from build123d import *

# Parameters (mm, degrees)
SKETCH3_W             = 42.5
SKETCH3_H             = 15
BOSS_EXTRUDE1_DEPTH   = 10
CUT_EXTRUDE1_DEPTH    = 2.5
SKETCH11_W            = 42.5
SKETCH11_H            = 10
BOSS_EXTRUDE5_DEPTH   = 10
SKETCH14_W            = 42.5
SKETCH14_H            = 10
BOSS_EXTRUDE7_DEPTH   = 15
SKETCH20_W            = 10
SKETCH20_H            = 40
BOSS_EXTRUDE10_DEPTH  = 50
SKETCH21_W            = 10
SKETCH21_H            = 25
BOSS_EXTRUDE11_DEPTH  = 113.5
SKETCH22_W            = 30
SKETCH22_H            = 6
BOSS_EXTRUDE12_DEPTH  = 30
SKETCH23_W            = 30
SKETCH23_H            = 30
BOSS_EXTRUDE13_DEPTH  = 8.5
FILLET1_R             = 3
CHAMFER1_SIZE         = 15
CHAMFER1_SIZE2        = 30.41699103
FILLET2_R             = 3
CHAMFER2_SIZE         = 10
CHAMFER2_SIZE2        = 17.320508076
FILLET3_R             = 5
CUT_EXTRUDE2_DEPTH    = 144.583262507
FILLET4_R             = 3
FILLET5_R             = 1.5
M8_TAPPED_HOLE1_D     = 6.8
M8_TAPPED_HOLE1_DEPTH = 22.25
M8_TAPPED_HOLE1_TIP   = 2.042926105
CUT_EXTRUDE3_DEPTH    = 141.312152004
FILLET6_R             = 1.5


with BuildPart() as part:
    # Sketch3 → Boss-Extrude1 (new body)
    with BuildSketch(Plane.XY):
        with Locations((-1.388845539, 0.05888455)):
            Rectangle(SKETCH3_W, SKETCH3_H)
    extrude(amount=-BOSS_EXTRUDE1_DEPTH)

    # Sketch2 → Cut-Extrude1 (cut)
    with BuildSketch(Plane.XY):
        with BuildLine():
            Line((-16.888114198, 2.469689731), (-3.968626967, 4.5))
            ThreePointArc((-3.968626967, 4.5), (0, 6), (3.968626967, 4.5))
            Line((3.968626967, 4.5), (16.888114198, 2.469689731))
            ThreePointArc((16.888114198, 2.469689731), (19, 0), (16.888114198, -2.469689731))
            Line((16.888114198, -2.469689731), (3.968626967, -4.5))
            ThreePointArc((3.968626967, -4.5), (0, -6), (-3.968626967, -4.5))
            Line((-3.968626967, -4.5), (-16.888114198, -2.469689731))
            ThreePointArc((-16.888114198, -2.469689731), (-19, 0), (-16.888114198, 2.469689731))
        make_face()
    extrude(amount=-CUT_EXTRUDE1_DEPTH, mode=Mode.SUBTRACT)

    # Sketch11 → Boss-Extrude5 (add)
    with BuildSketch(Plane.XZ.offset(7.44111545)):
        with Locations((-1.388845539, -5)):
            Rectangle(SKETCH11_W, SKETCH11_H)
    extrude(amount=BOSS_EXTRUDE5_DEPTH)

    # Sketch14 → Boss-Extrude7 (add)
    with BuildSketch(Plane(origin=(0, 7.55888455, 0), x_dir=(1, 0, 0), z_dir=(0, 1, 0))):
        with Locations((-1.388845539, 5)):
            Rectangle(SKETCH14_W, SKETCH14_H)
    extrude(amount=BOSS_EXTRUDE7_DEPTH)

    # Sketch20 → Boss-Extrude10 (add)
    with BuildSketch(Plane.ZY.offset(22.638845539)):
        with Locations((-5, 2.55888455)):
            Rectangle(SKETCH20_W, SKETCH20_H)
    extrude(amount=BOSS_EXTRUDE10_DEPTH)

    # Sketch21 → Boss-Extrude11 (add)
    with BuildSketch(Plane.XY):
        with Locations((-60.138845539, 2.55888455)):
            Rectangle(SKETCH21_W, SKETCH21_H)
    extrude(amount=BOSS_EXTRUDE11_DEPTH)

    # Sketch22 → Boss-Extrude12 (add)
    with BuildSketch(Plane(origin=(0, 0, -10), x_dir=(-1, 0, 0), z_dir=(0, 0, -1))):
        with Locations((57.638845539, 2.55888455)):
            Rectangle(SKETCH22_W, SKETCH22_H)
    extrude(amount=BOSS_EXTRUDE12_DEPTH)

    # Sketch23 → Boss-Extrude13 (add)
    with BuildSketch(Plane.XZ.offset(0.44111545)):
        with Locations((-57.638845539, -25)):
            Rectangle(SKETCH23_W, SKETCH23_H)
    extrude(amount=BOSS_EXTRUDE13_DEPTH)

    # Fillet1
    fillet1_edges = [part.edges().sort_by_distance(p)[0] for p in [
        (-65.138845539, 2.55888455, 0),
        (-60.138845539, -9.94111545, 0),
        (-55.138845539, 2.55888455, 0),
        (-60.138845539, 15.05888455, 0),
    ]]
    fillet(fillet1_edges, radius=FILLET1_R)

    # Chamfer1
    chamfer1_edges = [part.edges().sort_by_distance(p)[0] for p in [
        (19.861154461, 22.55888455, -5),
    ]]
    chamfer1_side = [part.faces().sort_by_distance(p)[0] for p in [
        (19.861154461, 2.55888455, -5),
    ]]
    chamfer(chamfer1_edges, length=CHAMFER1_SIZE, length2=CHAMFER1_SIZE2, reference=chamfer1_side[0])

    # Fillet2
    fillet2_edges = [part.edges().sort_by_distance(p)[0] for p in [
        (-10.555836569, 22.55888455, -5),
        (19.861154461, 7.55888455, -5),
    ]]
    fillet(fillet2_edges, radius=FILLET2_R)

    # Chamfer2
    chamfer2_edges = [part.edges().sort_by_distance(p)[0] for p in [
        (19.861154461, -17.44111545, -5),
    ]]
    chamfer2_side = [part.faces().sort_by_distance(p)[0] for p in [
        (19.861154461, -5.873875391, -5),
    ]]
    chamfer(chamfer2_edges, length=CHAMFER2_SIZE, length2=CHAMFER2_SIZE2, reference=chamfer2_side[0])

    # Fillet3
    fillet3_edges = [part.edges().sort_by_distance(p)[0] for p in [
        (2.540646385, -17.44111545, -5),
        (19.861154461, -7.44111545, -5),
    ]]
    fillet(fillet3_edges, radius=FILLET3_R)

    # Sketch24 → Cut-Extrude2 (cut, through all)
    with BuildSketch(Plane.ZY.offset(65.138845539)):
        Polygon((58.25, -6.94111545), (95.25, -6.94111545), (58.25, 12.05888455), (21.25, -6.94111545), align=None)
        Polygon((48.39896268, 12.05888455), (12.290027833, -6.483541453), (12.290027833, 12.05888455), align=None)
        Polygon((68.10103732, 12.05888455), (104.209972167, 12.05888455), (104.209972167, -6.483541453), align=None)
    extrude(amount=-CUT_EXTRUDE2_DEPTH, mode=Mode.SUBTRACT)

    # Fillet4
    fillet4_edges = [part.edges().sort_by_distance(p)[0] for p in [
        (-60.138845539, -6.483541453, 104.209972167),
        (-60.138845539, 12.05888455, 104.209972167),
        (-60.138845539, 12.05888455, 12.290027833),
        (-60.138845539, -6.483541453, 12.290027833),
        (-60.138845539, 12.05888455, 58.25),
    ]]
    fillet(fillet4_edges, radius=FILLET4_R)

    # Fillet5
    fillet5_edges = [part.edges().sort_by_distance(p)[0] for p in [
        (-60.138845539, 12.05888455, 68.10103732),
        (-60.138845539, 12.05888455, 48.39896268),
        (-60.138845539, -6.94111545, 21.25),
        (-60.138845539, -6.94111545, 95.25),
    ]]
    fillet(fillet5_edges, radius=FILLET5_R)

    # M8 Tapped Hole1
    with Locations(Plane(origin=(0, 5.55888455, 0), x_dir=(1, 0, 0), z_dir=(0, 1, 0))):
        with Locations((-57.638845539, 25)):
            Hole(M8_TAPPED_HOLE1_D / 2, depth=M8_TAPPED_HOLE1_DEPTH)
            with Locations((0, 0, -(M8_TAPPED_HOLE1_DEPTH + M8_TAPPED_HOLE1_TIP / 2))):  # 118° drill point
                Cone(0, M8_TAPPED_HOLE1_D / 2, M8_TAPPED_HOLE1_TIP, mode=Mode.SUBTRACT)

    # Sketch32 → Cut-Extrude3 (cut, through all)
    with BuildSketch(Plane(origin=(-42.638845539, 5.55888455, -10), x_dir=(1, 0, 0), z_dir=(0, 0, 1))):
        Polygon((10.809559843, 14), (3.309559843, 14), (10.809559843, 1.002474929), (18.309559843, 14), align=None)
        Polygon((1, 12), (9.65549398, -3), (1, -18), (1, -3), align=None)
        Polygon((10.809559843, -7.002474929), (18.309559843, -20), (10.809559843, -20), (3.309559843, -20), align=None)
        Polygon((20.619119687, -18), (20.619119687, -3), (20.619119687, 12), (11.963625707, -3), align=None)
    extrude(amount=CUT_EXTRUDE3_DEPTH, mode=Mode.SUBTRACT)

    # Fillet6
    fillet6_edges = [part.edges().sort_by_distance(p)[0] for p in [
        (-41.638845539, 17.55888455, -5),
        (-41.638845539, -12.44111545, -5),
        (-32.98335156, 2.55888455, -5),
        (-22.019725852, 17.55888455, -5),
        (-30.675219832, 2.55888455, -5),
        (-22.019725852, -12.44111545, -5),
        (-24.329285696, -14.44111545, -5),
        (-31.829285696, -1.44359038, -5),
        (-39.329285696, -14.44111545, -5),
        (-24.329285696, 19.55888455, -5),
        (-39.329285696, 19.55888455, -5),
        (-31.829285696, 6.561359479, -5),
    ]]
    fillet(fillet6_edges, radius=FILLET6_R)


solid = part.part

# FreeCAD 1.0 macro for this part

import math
import FreeCAD as App
import Part
import Sketcher
Q = App.Units.Quantity


def edges_at(feature, points):
    """Names of the edges that pass closest to the given points."""
    edges = feature.Shape.Edges
    near = lambda p: min(range(len(edges)), key=lambda i: edges[i].distToShape(Part.Vertex(*p))[0])
    return sorted({f"Edge{near(p) + 1}" for p in points})


def add_polygon(sketch, points):
    """Adds a closed chain of lines whose ends are joined by coincident constraints."""
    first, n = sketch.GeometryCount, len(points)
    for a, b in zip(points, points[1:] + points[:1]):
        sketch.addGeometry(Part.LineSegment(App.Vector(*a, 0), App.Vector(*b, 0)), False)
    for i in range(n):
        sketch.addConstraint(Sketcher.Constraint("Coincident", first + i, 2, first + (i + 1) % n, 1))

doc = App.newDocument("Part")
params = doc.addObject("Spreadsheet::Sheet", "Params")
for row, (alias, value) in enumerate([
    ("sketch1_height", "15 mm"),
    ("sketch1_width", "42.5 mm"),
    ("pad1_length", "10 mm"),
    ("sketch2_radius", "6 mm"),
    ("sketch2_radius2", "2.5 mm"),
    ("pocket1_length", "2.5 mm"),
    ("sketch3_height", "10 mm"),
    ("sketch3_width", "42.5 mm"),
    ("pad2_length", "10 mm"),
    ("sketch4_height", "10 mm"),
    ("sketch4_width", "42.5 mm"),
    ("pad3_length", "15 mm"),
    ("sketch5_width", "40 mm"),
    ("sketch5_height", "10 mm"),
    ("pad4_length", "50 mm"),
    ("sketch6_width", "10 mm"),
    ("sketch6_height", "25 mm"),
    ("pad5_length", "113.5 mm"),
    ("sketch7_width", "30 mm"),
    ("sketch7_height", "6 mm"),
    ("pad6_length", "30 mm"),
    ("sketch8_width", "30 mm"),
    ("pad7_length", "8.5 mm"),
    ("fillet_radius", "3 mm"),
    ("chamfer_size", "15 mm"),
    ("chamfer_size2", "30.416991 mm"),
    ("fillet2_radius", "3 mm"),
    ("chamfer2_size", "10 mm"),
    ("chamfer2_size2", "17.320508 mm"),
    ("fillet3_radius", "5 mm"),
    ("sketch9_height", "74 mm"),
    ("fillet4_radius", "3 mm"),
    ("fillet5_radius", "1.5 mm"),
    ("sketch10_diameter", "6.8 mm"),
    ("hole_diameter", "6.8 mm"),
    ("hole_depth", "22.25 mm"),
    ("sketch11_width", "15 mm"),
    ("sketch11_height", "30 mm"),
    ("fillet6_radius", "1.5 mm"),
], start=1):
    params.set(f"A{row}", alias)
    params.set(f"B{row}", "=" + value)
    params.setAlias(f"B{row}", alias)

body = doc.addObject("PartDesign::Body", "Body")

# Sketch on XY plane
sketch1 = body.newObject("Sketcher::SketchObject", "Sketch")
sketch1.AttachmentSupport = (doc.getObject("XY_Plane"), [""])
sketch1.MapMode = "FlatFace"
add_polygon(sketch1, [(-23, 8), (-23, -7), (20, -7), (20, 8)])  # lines 0-3
sketch1.addConstraint([
    Sketcher.Constraint("Vertical", 0),
    Sketcher.Constraint("Horizontal", 1),
    Sketcher.Constraint("Vertical", 2),
    Sketcher.Constraint("Horizontal", 3),
    Sketcher.Constraint("DistanceY", 0, 2, 0, 1, Q("15 mm")),
    Sketcher.Constraint("DistanceX", 1, 1, 1, 2, Q("42.5 mm")),
    Sketcher.Constraint("DistanceX", 0, 2, -1, 1, Q("22.638846 mm")),
    Sketcher.Constraint("DistanceY", 0, 2, -1, 1, Q("7.441115 mm")),
])
sketch1.setExpression("Constraints[8]", "Params.sketch1_height")
sketch1.setExpression("Constraints[9]", "Params.sketch1_width")
pad1 = body.newObject("PartDesign::Pad", "Pad")
pad1.Profile = sketch1
pad1.setExpression("Length", "Params.pad1_length")
pad1.Reversed = True

# Sketch on XY plane
sketch2 = body.newObject("Sketcher::SketchObject", "Sketch001")
sketch2.AttachmentSupport = (doc.getObject("XY_Plane"), [""])
sketch2.MapMode = "FlatFace"
sketch2.addGeometry([
    Part.LineSegment(App.Vector(-4, 4.5, 0), App.Vector(-16.9, 2.5, 0)),  # 0
    Part.ArcOfCircle(Part.Circle(App.Vector(-16.5, 0, 0), App.Vector(0, 0, 1), 2.5), math.radians(99), math.radians(261)),  # 1
    Part.LineSegment(App.Vector(-16.9, -2.5, 0), App.Vector(-4, -4.5, 0)),  # 2
    Part.ArcOfCircle(Part.Circle(App.Vector(0, 0, 0), App.Vector(0, 0, 1), 6), math.radians(-131), math.radians(-49)),  # 3
    Part.LineSegment(App.Vector(4, -4.5, 0), App.Vector(16.9, -2.5, 0)),  # 4
    Part.ArcOfCircle(Part.Circle(App.Vector(16.5, 0, 0), App.Vector(0, 0, 1), 2.5), math.radians(-81), math.radians(81)),  # 5
    Part.LineSegment(App.Vector(16.9, 2.5, 0), App.Vector(4, 4.5, 0)),  # 6
    Part.ArcOfCircle(Part.Circle(App.Vector(0, 0, 0), App.Vector(0, 0, 1), 6), math.radians(49), math.radians(131)),  # 7
], False)
sketch2.addConstraint([
    Sketcher.Constraint("Tangent", 0, 2, 1, 1),
    Sketcher.Constraint("Tangent", 1, 2, 2, 1),
    Sketcher.Constraint("Coincident", 2, 2, 3, 1),
    Sketcher.Constraint("Coincident", 3, 2, 4, 1),
    Sketcher.Constraint("Tangent", 4, 2, 5, 1),
    Sketcher.Constraint("Tangent", 5, 2, 6, 1),
    Sketcher.Constraint("Coincident", 6, 2, 7, 1),
    Sketcher.Constraint("Coincident", 7, 2, 0, 1),
    Sketcher.Constraint("Coincident", 3, 3, -1, 1),
    Sketcher.Constraint("Coincident", 7, 3, -1, 1),
    Sketcher.Constraint("Equal", 1, 5),
    Sketcher.Constraint("Equal", 3, 7),
    Sketcher.Constraint("Symmetric", 1, 3, 5, 3, -1, 1),
    Sketcher.Constraint("Symmetric", 1, 2, 4, 2, -2),
    Sketcher.Constraint("Parallel", 0, 4),
    Sketcher.Constraint("Parallel", 2, 6),
    Sketcher.Constraint("Radius", 3, Q("6 mm")),
    Sketcher.Constraint("Radius", 1, Q("2.5 mm")),
    Sketcher.Constraint("DistanceX", 1, 3, 5, 3, Q("33 mm")),
    Sketcher.Constraint("DistanceY", 3, 2, 6, 2, Q("9 mm")),
])
sketch2.setExpression("Constraints[16]", "Params.sketch2_radius")
sketch2.setExpression("Constraints[17]", "Params.sketch2_radius2")
pocket1 = body.newObject("PartDesign::Pocket", "Pocket")
pocket1.Profile = sketch2
pocket1.setExpression("Length", "Params.pocket1_length")

# Sketch on XZ plane
sketch3 = body.newObject("Sketcher::SketchObject", "Sketch002")
sketch3.AttachmentSupport = (doc.getObject("XZ_Plane"), [""])
sketch3.MapMode = "FlatFace"
sketch3.AttachmentOffset = App.Placement(App.Vector(0, 0, 7.441115), App.Rotation())
add_polygon(sketch3, [(-23, 0), (-23, -10), (20, -10), (20, 0)])  # lines 0-3
sketch3.addConstraint([
    Sketcher.Constraint("Vertical", 0),
    Sketcher.Constraint("Horizontal", 1),
    Sketcher.Constraint("Vertical", 2),
    Sketcher.Constraint("Horizontal", 3),
    Sketcher.Constraint("PointOnObject", 2, 2, -1),
    Sketcher.Constraint("DistanceY", 0, 2, 0, 1, Q("10 mm")),
    Sketcher.Constraint("DistanceX", 1, 1, 1, 2, Q("42.5 mm")),
    Sketcher.Constraint("DistanceX", 0, 2, -1, 1, Q("22.638846 mm")),
])
sketch3.setExpression("Constraints[9]", "Params.sketch3_height")
sketch3.setExpression("Constraints[10]", "Params.sketch3_width")
pad2 = body.newObject("PartDesign::Pad", "Pad001")
pad2.Profile = sketch3
pad2.setExpression("Length", "Params.pad2_length")

# Sketch on XZ plane
sketch4 = body.newObject("Sketcher::SketchObject", "Sketch003")
sketch4.AttachmentSupport = (doc.getObject("XZ_Plane"), [""])
sketch4.MapMode = "FlatFace"
sketch4.AttachmentOffset = App.Placement(App.Vector(0, 0, -7.558885), App.Rotation())
add_polygon(sketch4, [(-23, -10), (-23, 0), (20, 0), (20, -10)])  # lines 0-3
sketch4.addConstraint([
    Sketcher.Constraint("Vertical", 0),
    Sketcher.Constraint("Horizontal", 1),
    Sketcher.Constraint("Vertical", 2),
    Sketcher.Constraint("Horizontal", 3),
    Sketcher.Constraint("PointOnObject", 0, 2, -1),
    Sketcher.Constraint("DistanceY", 0, 1, 0, 2, Q("10 mm")),
    Sketcher.Constraint("DistanceX", 1, 1, 1, 2, Q("42.5 mm")),
    Sketcher.Constraint("DistanceX", 0, 2, -1, 1, Q("22.638846 mm")),
])
sketch4.setExpression("Constraints[9]", "Params.sketch4_height")
sketch4.setExpression("Constraints[10]", "Params.sketch4_width")
pad3 = body.newObject("PartDesign::Pad", "Pad002")
pad3.Profile = sketch4
pad3.setExpression("Length", "Params.pad3_length")
pad3.Reversed = True

# Sketch on YZ plane
sketch5 = body.newObject("Sketcher::SketchObject", "Sketch004")
sketch5.AttachmentSupport = (doc.getObject("YZ_Plane"), [""])
sketch5.MapMode = "FlatFace"
sketch5.AttachmentOffset = App.Placement(App.Vector(0, 0, -22.638846), App.Rotation())
add_polygon(sketch5, [(23, -10), (-17, -10), (-17, 0), (23, 0)])  # lines 0-3
sketch5.addConstraint([
    Sketcher.Constraint("Horizontal", 0),
    Sketcher.Constraint("Vertical", 1),
    Sketcher.Constraint("Horizontal", 2),
    Sketcher.Constraint("Vertical", 3),
    Sketcher.Constraint("PointOnObject", 1, 2, -1),
    Sketcher.Constraint("DistanceX", 0, 2, 0, 1, Q("40 mm")),
    Sketcher.Constraint("DistanceY", 1, 1, 1, 2, Q("10 mm")),
    Sketcher.Constraint("DistanceX", 0, 2, -1, 1, Q("17.441115 mm")),
])
sketch5.setExpression("Constraints[9]", "Params.sketch5_width")
sketch5.setExpression("Constraints[10]", "Params.sketch5_height")
pad4 = body.newObject("PartDesign::Pad", "Pad003")
pad4.Profile = sketch5
pad4.setExpression("Length", "Params.pad4_length")
pad4.Reversed = True

# Sketch on XY plane
sketch6 = body.newObject("Sketcher::SketchObject", "Sketch005")
sketch6.AttachmentSupport = (doc.getObject("XY_Plane"), [""])
sketch6.MapMode = "FlatFace"
add_polygon(sketch6, [(-65, 15), (-65, -10), (-55, -10), (-55, 15)])  # lines 0-3
sketch6.addConstraint([
    Sketcher.Constraint("Vertical", 0),
    Sketcher.Constraint("Horizontal", 1),
    Sketcher.Constraint("Vertical", 2),
    Sketcher.Constraint("Horizontal", 3),
    Sketcher.Constraint("DistanceX", 1, 1, 1, 2, Q("10 mm")),
    Sketcher.Constraint("DistanceY", 0, 2, 0, 1, Q("25 mm")),
    Sketcher.Constraint("DistanceX", 0, 2, -1, 1, Q("65.138846 mm")),
    Sketcher.Constraint("DistanceY", 0, 2, -1, 1, Q("9.941115 mm")),
])
sketch6.setExpression("Constraints[8]", "Params.sketch6_width")
sketch6.setExpression("Constraints[9]", "Params.sketch6_height")
pad5 = body.newObject("PartDesign::Pad", "Pad004")
pad5.Profile = sketch6
pad5.setExpression("Length", "Params.pad5_length")

# Sketch on XY plane
sketch7 = body.newObject("Sketcher::SketchObject", "Sketch006")
sketch7.AttachmentSupport = (doc.getObject("XY_Plane"), [""])
sketch7.MapMode = "FlatFace"
sketch7.AttachmentOffset = App.Placement(App.Vector(0, 0, -10), App.Rotation())
add_polygon(sketch7, [(-43, 6), (-43, 0), (-73, 0), (-73, 6)])  # lines 0-3
sketch7.addConstraint([
    Sketcher.Constraint("Vertical", 0),
    Sketcher.Constraint("Horizontal", 1),
    Sketcher.Constraint("Vertical", 2),
    Sketcher.Constraint("Horizontal", 3),
    Sketcher.Constraint("DistanceX", 1, 2, 1, 1, Q("30 mm")),
    Sketcher.Constraint("DistanceY", 0, 2, 0, 1, Q("6 mm")),
    Sketcher.Constraint("DistanceX", 0, 2, -1, 1, Q("42.638846 mm")),
    Sketcher.Constraint("DistanceY", 0, 2, -1, 1, Q("0.441115 mm")),
])
sketch7.setExpression("Constraints[8]", "Params.sketch7_width")
sketch7.setExpression("Constraints[9]", "Params.sketch7_height")
pad6 = body.newObject("PartDesign::Pad", "Pad005")
pad6.Profile = sketch7
pad6.setExpression("Length", "Params.pad6_length")
pad6.Reversed = True

# Sketch on XZ plane
sketch8 = body.newObject("Sketcher::SketchObject", "Sketch007")
sketch8.AttachmentSupport = (doc.getObject("XZ_Plane"), [""])
sketch8.MapMode = "FlatFace"
sketch8.AttachmentOffset = App.Placement(App.Vector(0, 0, 0.441115), App.Rotation())
add_polygon(sketch8, [(-73, -10), (-73, -40), (-43, -40), (-43, -10)])  # lines 0-3
sketch8.addConstraint([
    Sketcher.Constraint("Vertical", 0),
    Sketcher.Constraint("Horizontal", 1),
    Sketcher.Constraint("Vertical", 2),
    Sketcher.Constraint("Horizontal", 3),
    Sketcher.Constraint("Equal", 3, 0),
    Sketcher.Constraint("DistanceX", 1, 1, 1, 2, Q("30 mm")),
    Sketcher.Constraint("DistanceY", 0, 2, -1, 1, Q("40 mm")),
    Sketcher.Constraint("DistanceX", 0, 2, -1, 1, Q("72.638846 mm")),
])
sketch8.setExpression("Constraints[9]", "Params.sketch8_width")
pad7 = body.newObject("PartDesign::Pad", "Pad006")
pad7.Profile = sketch8
pad7.setExpression("Length", "Params.pad7_length")
doc.recompute()

fillet = body.newObject("PartDesign::Fillet", "Fillet")
fillet.Base = (pad7, edges_at(pad7, [
    (-65.139, 2.559, 0),
    (-60.139, -9.941, 0),
    (-55.139, 2.559, 0),
    (-60.139, 15.059, 0),
]))
fillet.setExpression("Radius", "Params.fillet_radius")
doc.recompute()

chamfer = body.newObject("PartDesign::Chamfer", "Chamfer")
chamfer.Base = (fillet, edges_at(fillet, [(19.861, 22.559, -5)]))
chamfer.ChamferType = "Two distances"
chamfer.setExpression("Size", "Params.chamfer_size")
chamfer.setExpression("Size2", "Params.chamfer_size2")
doc.recompute()

fillet2 = body.newObject("PartDesign::Fillet", "Fillet001")
fillet2.Base = (chamfer, edges_at(chamfer, [(-10.556, 22.559, -5), (19.861, 7.559, -5)]))
fillet2.setExpression("Radius", "Params.fillet2_radius")
doc.recompute()

chamfer2 = body.newObject("PartDesign::Chamfer", "Chamfer001")
chamfer2.Base = (fillet2, edges_at(fillet2, [(19.861, -17.441, -5)]))
chamfer2.ChamferType = "Two distances"
chamfer2.setExpression("Size", "Params.chamfer2_size")
chamfer2.setExpression("Size2", "Params.chamfer2_size2")
doc.recompute()

fillet3 = body.newObject("PartDesign::Fillet", "Fillet002")
fillet3.Base = (chamfer2, edges_at(chamfer2, [(2.541, -17.441, -5), (19.861, -7.441, -5)]))
fillet3.setExpression("Radius", "Params.fillet3_radius")

# Sketch on YZ plane
sketch9 = body.newObject("Sketcher::SketchObject", "Sketch008")
sketch9.AttachmentSupport = (doc.getObject("YZ_Plane"), [""])
sketch9.MapMode = "FlatFace"
sketch9.AttachmentOffset = App.Placement(App.Vector(0, 0, -65.138846), App.Rotation())
add_polygon(sketch9, [(-7, 95), (12, 58), (-7, 21)])  # lines 0-2
add_polygon(sketch9, [(-6, 12), (12, 48), (12, 12)])  # lines 3-5
add_polygon(sketch9, [(12, 104), (12, 68), (-6, 104)])  # lines 6-8
sketch9.addConstraint([
    Sketcher.Constraint("Vertical", 2),
    Sketcher.Constraint("Vertical", 4),
    Sketcher.Constraint("Horizontal", 5),
    Sketcher.Constraint("Vertical", 6),
    Sketcher.Constraint("Horizontal", 8),
    Sketcher.Constraint("Parallel", 1, 3),
    Sketcher.Constraint("Parallel", 0, 7),
    Sketcher.Constraint("Vertical", 0, 2, 3, 2),
    Sketcher.Constraint("Vertical", 4, 2, 6, 2),
    Sketcher.Constraint("Vertical", 5, 2, 7, 2),
    Sketcher.Constraint("Equal", 4, 6),
    Sketcher.Constraint("DistanceY", 2, 1, 2, 2, Q("74 mm")),
    Sketcher.Constraint("DistanceX", 1, 2, 0, 2, Q("19 mm")),
    Sketcher.Constraint("DistanceY", -1, 1, 0, 2, Q("58.25 mm")),
    Sketcher.Constraint("DistanceX", 5, 2, 5, 1, Q("18.542426 mm")),
    Sketcher.Constraint("DistanceX", 5, 2, -1, 1, Q("6.483541 mm")),
    Sketcher.Constraint("DistanceY", 4, 2, 6, 2, Q("55.811009 mm")),
    Sketcher.Constraint("DistanceY", -1, 1, 3, 2, Q("48.398963 mm")),
])
sketch9.setExpression("Constraints[20]", "Params.sketch9_height")
pocket2 = body.newObject("PartDesign::Pocket", "Pocket001")
pocket2.Profile = sketch9
pocket2.Type = "ThroughAll"
pocket2.Reversed = True
doc.recompute()

fillet4 = body.newObject("PartDesign::Fillet", "Fillet003")
fillet4.Base = (pocket2, edges_at(pocket2, [
    (-60.139, -6.484, 104.21),
    (-60.139, 12.059, 104.21),
    (-60.139, 12.059, 12.29),
    (-60.139, -6.484, 12.29),
    (-60.139, 12.059, 58.25),
]))
fillet4.setExpression("Radius", "Params.fillet4_radius")
doc.recompute()

fillet5 = body.newObject("PartDesign::Fillet", "Fillet004")
fillet5.Base = (fillet4, edges_at(fillet4, [
    (-60.139, 12.059, 68.101),
    (-60.139, 12.059, 48.399),
    (-60.139, -6.941, 21.25),
    (-60.139, -6.941, 95.25),
]))
fillet5.setExpression("Radius", "Params.fillet5_radius")

# Sketch on XZ plane
sketch10 = body.newObject("Sketcher::SketchObject", "Sketch009")
sketch10.AttachmentSupport = (doc.getObject("XZ_Plane"), [""])
sketch10.MapMode = "FlatFace"
sketch10.AttachmentOffset = App.Placement(App.Vector(0, 0, -5.558885), App.Rotation())
sketch10.addGeometry(Part.Circle(App.Vector(-57.6, -25, 0), App.Vector(0, 0, 1), 3.4), False)
sketch10.addConstraint([
    Sketcher.Constraint("Diameter", 0, Q("6.8 mm")),
    Sketcher.Constraint("DistanceY", 0, 3, -1, 1, Q("25 mm")),
    Sketcher.Constraint("DistanceX", 0, 3, -1, 1, Q("57.638846 mm")),
])
sketch10.setExpression("Constraints[0]", "Params.sketch10_diameter")
doc.recompute()
hole = body.newObject("PartDesign::Hole", "Hole")
hole.Profile = sketch10
hole.ThreadType = "None"
hole.setExpression("Diameter", "Params.hole_diameter")
hole.DepthType = "Dimension"
hole.setExpression("Depth", "Params.hole_depth")
hole.DrillPoint = "Angled"
hole.DrillPointAngle = 118
hole.Reversed = True

# Sketch on XY plane
sketch11 = body.newObject("Sketcher::SketchObject", "Sketch010")
sketch11.AttachmentSupport = (doc.getObject("XY_Plane"), [""])
sketch11.MapMode = "FlatFace"
sketch11.AttachmentOffset = App.Placement(App.Vector(0, 0, -10), App.Rotation())
add_polygon(sketch11, [(-39, 20), (-32, 7), (-24, 20)])  # lines 0-2
add_polygon(sketch11, [(-33, 3), (-42, 18), (-42, -12)])  # lines 3-5
add_polygon(sketch11, [(-24, -14), (-32, -1), (-39, -14)])  # lines 6-8
add_polygon(sketch11, [(-22, -12), (-22, 18), (-31, 3)])  # lines 9-11
sketch11.addConstraint([
    Sketcher.Constraint("Horizontal", 2),
    Sketcher.Constraint("Vertical", 4),
    Sketcher.Constraint("Horizontal", 8),
    Sketcher.Constraint("Vertical", 9),
    Sketcher.Constraint("Parallel", 0, 3),
    Sketcher.Constraint("Parallel", 1, 5),
    Sketcher.Constraint("Parallel", 3, 6),
    Sketcher.Constraint("Parallel", 5, 7),
    Sketcher.Constraint("Parallel", 7, 10),
    Sketcher.Constraint("Parallel", 6, 11),
    Sketcher.Constraint("Horizontal", 3, 2, 9, 2),
    Sketcher.Constraint("Horizontal", 5, 2, 10, 2),
    Sketcher.Constraint("Horizontal", 4, 2, 11, 2),
    Sketcher.Constraint("Vertical", 0, 2, 6, 2),
    Sketcher.Constraint("Vertical", 2, 2, 7, 2),
    Sketcher.Constraint("DistanceX", 2, 2, 2, 1, Q("15 mm")),
    Sketcher.Constraint("DistanceY", 4, 2, 4, 1, Q("30 mm")),
    Sketcher.Constraint("DistanceY", 3, 2, 2, 2, Q("2 mm")),
    Sketcher.Constraint("DistanceY", 7, 2, 4, 2, Q("2 mm")),
    Sketcher.Constraint("Distance", 3, Q("17.318129 mm")),
    Sketcher.Constraint("DistanceY", -1, 1, 0, 2, Q("6.561359 mm")),
    Sketcher.Constraint("DistanceX", 5, 2, -1, 1, Q("32.983352 mm")),
    Sketcher.Constraint("DistanceX", 10, 2, -1, 1, Q("30.67522 mm")),
    Sketcher.Constraint("DistanceX", 3, 2, 2, 2, Q("2.30956 mm")),
])
sketch11.setExpression("Constraints[27]", "Params.sketch11_width")
sketch11.setExpression("Constraints[28]", "Params.sketch11_height")
pocket3 = body.newObject("PartDesign::Pocket", "Pocket002")
pocket3.Profile = sketch11
pocket3.Type = "ThroughAll"
pocket3.Reversed = True
doc.recompute()

fillet6 = body.newObject("PartDesign::Fillet", "Fillet005")
fillet6.Base = (pocket3, edges_at(pocket3, [
    (-41.639, 17.559, -5),
    (-41.639, -12.441, -5),
    (-32.983, 2.559, -5),
    (-22.02, 17.559, -5),
    (-30.675, 2.559, -5),
    (-22.02, -12.441, -5),
    (-24.329, -14.441, -5),
    (-31.829, -1.444, -5),
    (-39.329, -14.441, -5),
    (-24.329, 19.559, -5),
    (-39.329, 19.559, -5),
    (-31.829, 6.561, -5),
]))
fillet6.setExpression("Radius", "Params.fillet6_radius")

doc.recompute()
